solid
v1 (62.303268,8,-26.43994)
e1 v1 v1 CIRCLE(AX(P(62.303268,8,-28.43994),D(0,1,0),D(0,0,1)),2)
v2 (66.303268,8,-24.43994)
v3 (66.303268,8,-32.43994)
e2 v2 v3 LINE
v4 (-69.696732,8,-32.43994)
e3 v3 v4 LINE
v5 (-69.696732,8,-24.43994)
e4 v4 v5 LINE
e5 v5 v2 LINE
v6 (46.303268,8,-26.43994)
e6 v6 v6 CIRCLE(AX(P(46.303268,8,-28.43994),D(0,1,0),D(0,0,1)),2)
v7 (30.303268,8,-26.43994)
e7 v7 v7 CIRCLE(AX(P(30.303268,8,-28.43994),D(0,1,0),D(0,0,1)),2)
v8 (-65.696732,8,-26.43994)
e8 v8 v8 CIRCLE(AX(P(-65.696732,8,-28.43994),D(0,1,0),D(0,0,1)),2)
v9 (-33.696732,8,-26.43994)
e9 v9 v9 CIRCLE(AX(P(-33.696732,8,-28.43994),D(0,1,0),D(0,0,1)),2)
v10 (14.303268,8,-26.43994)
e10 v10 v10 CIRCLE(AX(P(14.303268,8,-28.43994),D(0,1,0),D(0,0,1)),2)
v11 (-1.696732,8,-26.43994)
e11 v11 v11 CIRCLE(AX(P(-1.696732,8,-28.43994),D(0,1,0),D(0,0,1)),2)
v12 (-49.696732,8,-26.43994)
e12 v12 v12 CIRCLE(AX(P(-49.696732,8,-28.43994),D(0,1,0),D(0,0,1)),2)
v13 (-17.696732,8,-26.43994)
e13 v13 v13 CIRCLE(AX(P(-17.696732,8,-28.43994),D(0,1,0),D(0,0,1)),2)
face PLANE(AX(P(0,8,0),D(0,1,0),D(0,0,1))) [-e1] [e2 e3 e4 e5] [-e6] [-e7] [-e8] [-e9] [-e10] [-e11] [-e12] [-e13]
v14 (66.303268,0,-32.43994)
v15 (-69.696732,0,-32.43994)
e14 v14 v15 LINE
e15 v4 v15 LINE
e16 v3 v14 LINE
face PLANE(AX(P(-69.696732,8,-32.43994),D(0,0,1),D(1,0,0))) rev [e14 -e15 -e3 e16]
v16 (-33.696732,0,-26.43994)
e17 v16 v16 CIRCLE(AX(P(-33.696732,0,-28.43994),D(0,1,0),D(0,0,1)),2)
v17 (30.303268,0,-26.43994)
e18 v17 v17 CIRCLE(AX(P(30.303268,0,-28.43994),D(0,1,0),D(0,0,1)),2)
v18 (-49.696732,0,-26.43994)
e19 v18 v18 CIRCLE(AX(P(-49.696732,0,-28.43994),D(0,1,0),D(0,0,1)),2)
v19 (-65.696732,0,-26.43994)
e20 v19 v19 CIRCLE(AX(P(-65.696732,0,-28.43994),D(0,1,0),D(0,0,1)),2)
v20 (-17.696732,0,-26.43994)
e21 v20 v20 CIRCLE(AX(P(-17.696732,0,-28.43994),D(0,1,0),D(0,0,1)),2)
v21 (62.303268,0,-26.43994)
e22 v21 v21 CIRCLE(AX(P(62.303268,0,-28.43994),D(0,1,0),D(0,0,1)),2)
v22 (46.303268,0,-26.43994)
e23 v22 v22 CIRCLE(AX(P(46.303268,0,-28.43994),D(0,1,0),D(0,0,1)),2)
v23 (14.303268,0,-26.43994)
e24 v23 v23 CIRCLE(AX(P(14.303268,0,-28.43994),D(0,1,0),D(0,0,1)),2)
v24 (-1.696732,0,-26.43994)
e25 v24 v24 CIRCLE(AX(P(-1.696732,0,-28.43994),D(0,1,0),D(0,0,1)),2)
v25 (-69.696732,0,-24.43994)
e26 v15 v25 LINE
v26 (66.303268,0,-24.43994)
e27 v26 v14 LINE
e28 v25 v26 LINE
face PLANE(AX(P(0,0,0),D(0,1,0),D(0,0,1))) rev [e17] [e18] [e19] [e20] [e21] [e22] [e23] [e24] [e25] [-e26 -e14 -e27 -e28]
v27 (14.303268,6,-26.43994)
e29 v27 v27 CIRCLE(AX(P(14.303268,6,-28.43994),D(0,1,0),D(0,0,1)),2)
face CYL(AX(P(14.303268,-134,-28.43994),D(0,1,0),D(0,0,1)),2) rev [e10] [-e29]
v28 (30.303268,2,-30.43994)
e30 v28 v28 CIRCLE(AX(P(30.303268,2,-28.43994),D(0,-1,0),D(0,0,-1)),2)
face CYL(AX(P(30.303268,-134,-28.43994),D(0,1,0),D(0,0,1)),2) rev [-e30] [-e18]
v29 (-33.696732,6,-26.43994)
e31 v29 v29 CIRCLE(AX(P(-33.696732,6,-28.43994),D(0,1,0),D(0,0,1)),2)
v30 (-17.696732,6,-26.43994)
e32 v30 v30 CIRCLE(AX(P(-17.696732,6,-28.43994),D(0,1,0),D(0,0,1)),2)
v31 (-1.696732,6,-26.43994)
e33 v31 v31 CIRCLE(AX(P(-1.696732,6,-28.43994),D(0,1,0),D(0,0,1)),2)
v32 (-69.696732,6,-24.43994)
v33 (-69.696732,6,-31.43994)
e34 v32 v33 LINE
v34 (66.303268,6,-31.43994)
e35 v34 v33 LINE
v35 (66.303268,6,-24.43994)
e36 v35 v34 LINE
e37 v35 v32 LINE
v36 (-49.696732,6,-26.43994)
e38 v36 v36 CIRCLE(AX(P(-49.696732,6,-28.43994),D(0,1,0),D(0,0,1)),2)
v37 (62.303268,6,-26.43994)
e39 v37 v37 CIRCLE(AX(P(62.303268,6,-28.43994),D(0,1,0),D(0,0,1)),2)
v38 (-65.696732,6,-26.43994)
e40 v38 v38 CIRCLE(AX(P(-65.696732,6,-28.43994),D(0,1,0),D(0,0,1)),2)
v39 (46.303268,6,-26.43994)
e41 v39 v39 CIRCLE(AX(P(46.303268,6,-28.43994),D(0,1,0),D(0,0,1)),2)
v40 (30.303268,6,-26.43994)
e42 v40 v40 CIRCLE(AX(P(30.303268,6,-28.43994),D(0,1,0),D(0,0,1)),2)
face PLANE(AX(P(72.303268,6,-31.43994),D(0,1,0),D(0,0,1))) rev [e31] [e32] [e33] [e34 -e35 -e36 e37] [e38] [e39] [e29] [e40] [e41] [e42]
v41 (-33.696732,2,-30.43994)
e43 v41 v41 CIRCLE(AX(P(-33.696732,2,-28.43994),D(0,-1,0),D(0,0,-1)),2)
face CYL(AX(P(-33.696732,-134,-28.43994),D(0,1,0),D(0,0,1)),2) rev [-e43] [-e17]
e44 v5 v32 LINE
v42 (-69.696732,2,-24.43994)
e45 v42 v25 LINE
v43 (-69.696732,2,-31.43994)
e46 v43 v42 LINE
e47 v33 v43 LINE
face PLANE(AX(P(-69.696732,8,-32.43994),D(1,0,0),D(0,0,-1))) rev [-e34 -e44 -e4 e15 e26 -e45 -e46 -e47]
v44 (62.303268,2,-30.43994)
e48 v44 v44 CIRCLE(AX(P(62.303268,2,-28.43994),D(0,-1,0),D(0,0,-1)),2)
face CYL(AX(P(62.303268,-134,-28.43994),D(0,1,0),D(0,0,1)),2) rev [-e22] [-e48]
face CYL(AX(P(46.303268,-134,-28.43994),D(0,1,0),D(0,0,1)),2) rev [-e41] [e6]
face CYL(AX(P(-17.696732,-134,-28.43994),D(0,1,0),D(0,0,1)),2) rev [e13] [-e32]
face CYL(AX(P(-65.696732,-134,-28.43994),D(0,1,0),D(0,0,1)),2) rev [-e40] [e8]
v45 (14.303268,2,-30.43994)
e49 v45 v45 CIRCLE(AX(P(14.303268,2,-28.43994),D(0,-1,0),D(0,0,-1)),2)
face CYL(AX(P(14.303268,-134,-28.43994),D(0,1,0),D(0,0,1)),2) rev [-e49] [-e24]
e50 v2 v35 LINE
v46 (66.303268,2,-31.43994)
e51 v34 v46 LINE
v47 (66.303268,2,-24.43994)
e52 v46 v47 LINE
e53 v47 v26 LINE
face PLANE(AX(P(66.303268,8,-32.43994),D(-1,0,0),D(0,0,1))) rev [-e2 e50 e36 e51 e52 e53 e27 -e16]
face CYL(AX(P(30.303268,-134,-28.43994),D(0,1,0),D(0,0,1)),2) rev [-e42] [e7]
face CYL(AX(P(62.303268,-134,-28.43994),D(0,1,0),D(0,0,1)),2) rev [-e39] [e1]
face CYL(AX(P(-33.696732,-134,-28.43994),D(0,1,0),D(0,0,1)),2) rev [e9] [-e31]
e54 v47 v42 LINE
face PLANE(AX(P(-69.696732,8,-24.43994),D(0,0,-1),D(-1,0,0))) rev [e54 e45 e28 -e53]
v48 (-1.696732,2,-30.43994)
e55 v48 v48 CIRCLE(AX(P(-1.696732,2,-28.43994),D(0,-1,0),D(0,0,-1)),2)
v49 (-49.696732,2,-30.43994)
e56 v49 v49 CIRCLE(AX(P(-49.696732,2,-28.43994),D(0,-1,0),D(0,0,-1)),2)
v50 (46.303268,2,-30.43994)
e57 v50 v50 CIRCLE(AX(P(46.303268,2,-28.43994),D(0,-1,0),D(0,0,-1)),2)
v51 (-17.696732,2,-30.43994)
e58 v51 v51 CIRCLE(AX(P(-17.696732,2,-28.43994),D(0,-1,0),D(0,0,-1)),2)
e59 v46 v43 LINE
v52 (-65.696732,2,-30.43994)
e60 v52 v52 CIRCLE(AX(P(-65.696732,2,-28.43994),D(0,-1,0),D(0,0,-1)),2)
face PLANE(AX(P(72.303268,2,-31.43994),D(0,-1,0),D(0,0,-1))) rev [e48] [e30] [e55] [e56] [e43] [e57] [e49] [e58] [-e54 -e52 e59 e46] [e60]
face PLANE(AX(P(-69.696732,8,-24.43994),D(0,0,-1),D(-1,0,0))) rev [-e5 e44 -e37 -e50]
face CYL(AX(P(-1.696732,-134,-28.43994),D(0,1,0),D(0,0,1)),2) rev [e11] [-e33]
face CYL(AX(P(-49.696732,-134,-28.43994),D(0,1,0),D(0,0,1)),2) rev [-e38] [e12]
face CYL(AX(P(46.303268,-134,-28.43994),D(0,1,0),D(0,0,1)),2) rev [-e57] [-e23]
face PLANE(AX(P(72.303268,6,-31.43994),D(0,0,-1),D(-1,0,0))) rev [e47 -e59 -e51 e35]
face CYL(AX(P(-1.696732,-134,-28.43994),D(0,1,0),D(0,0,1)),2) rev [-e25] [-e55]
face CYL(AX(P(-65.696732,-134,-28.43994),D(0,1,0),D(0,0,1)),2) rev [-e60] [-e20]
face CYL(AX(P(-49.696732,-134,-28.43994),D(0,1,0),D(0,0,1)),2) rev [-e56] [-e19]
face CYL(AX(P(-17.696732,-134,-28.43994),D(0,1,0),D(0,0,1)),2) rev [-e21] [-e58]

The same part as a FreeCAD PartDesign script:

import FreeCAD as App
import Part
import Sketcher

V = App.Vector

doc = App.newDocument("Part")
body = doc.addObject("PartDesign::Body", "Body")

sketch1 = doc.addObject("Sketcher::SketchObject", "Sketch")
body.addObject(sketch1)
sketch1.AttachmentSupport = (doc.XZ_Plane, [""])
sketch1.MapMode = "FlatFace"
sketch1.addGeometry([
    Part.LineSegment(V(-70, -32, 0), V(-70, -24, 0)),
    Part.LineSegment(V(-70, -24, 0), V(66, -24, 0)),
    Part.LineSegment(V(66, -24, 0), V(66, -32, 0)),
    Part.LineSegment(V(66, -32, 0), V(-70, -32, 0)),
], False)
sketch1.addConstraint([
    Sketcher.Constraint("Coincident", 0, 2, 1, 1),
    Sketcher.Constraint("Coincident", 1, 2, 2, 1),
    Sketcher.Constraint("Coincident", 2, 2, 3, 1),
    Sketcher.Constraint("Coincident", 3, 2, 0, 1),
    Sketcher.Constraint("Vertical", 0),
    Sketcher.Constraint("Horizontal", 1),
    Sketcher.Constraint("Vertical", 2),
    Sketcher.Constraint("Horizontal", 3),
    Sketcher.Constraint("DistanceX", 1, 1, 1, 2, 136.0),
    Sketcher.Constraint("DistanceY", 0, 1, 0, 2, 8.0),
    Sketcher.Constraint("DistanceY", 0, 2, -1, 1, 24.43994),
    Sketcher.Constraint("DistanceX", 0, 2, -1, 1, 69.696732),
])
pad1 = doc.addObject("PartDesign::Pad", "Pad")
body.addObject(pad1)
pad1.Profile = sketch1
pad1.Length = 8
pad1.Reversed = True

sketch2 = doc.addObject("Sketcher::SketchObject", "Sketch001")
body.addObject(sketch2)
sketch2.AttachmentSupport = (doc.YZ_Plane, [""])
sketch2.MapMode = "FlatFace"
sketch2.AttachmentOffset = App.Placement(V(0, 0, -69.696732), App.Rotation())
sketch2.addGeometry([
    Part.LineSegment(V(6, -31.4, 0), V(2, -31.4, 0)),
    Part.LineSegment(V(2, -31.4, 0), V(2, -24.4, 0)),
    Part.LineSegment(V(2, -24.4, 0), V(6, -24.4, 0)),
    Part.LineSegment(V(6, -24.4, 0), V(6, -31.4, 0)),
], False)
sketch2.addConstraint([
    Sketcher.Constraint("Coincident", 0, 2, 1, 1),
    Sketcher.Constraint("Coincident", 1, 2, 2, 1),
    Sketcher.Constraint("Coincident", 2, 2, 3, 1),
    Sketcher.Constraint("Coincident", 3, 2, 0, 1),
    Sketcher.Constraint("Horizontal", 0),
    Sketcher.Constraint("Vertical", 1),
    Sketcher.Constraint("Horizontal", 2),
    Sketcher.Constraint("Vertical", 3),
    Sketcher.Constraint("DistanceX", 0, 2, 0, 1, 4.0),
    Sketcher.Constraint("DistanceY", 1, 1, 1, 2, 7.0),
    Sketcher.Constraint("DistanceX", -1, 1, 0, 2, 2.0),
    Sketcher.Constraint("DistanceY", 0, 2, -1, 1, 31.43994),
])
pocket1 = doc.addObject("PartDesign::Pocket", "Pocket")
body.addObject(pocket1)
pocket1.Profile = sketch2
pocket1.Length = 142
pocket1.Reversed = True

sketch3 = doc.addObject("Sketcher::SketchObject", "Sketch002")
body.addObject(sketch3)
sketch3.AttachmentSupport = (doc.XZ_Plane, [""])
sketch3.MapMode = "FlatFace"
sketch3.AttachmentOffset = App.Placement(V(0, 0, -8), App.Rotation())
sketch3.addGeometry([
    Part.Circle(V(-65.7, -28.4, 0), V(0, 0, 1), 2),
    Part.Circle(V(-49.7, -28.4, 0), V(0, 0, 1), 2),
    Part.Circle(V(-33.7, -28.4, 0), V(0, 0, 1), 2),
    Part.Circle(V(-17.7, -28.4, 0), V(0, 0, 1), 2),
    Part.Circle(V(-1.7, -28.4, 0), V(0, 0, 1), 2),
    Part.Circle(V(14.3, -28.4, 0), V(0, 0, 1), 2),
    Part.Circle(V(30.3, -28.4, 0), V(0, 0, 1), 2),
    Part.Circle(V(46.3, -28.4, 0), V(0, 0, 1), 2),
    Part.Circle(V(62.3, -28.4, 0), V(0, 0, 1), 2),
], False)
sketch3.addConstraint([
    Sketcher.Constraint("Equal", 0, 1),
    Sketcher.Constraint("Equal", 1, 2),
    Sketcher.Constraint("Equal", 2, 3),
    Sketcher.Constraint("Equal", 3, 4),
    Sketcher.Constraint("Equal", 4, 5),
    Sketcher.Constraint("Equal", 5, 6),
    Sketcher.Constraint("Equal", 6, 7),
    Sketcher.Constraint("Equal", 7, 8),
    Sketcher.Constraint("Horizontal", 0, 3, 1, 3),
    Sketcher.Constraint("Horizontal", 1, 3, 2, 3),
    Sketcher.Constraint("Horizontal", 2, 3, 3, 3),
    Sketcher.Constraint("Horizontal", 3, 3, 4, 3),
    Sketcher.Constraint("Horizontal", 4, 3, 5, 3),
    Sketcher.Constraint("Horizontal", 5, 3, 6, 3),
    Sketcher.Constraint("Horizontal", 6, 3, 7, 3),
    Sketcher.Constraint("Horizontal", 7, 3, 8, 3),
    Sketcher.Constraint("Diameter", 0, 4.0),
    Sketcher.Constraint("DistanceX", 0, 3, 1, 3, 16.0),
    Sketcher.Constraint("DistanceX", 1, 3, 2, 3, 16.0),
    Sketcher.Constraint("DistanceX", 2, 3, 3, 3, 16.0),
    Sketcher.Constraint("DistanceX", 3, 3, 4, 3, 16.0),
    Sketcher.Constraint("DistanceX", 4, 3, 5, 3, 16.0),
    Sketcher.Constraint("DistanceX", 5, 3, 6, 3, 16.0),
    Sketcher.Constraint("DistanceX", 6, 3, 7, 3, 16.0),
    Sketcher.Constraint("DistanceX", 7, 3, 8, 3, 16.0),
    Sketcher.Constraint("DistanceY", 0, 3, -1, 1, 28.43994),
    Sketcher.Constraint("DistanceX", 0, 3, -1, 1, 65.696732),
])
pocket2 = doc.addObject("PartDesign::Pocket", "Pocket001")
body.addObject(pocket2)
pocket2.Profile = sketch3
pocket2.Length = 142
pocket2.Reversed = True

doc.recompute()
